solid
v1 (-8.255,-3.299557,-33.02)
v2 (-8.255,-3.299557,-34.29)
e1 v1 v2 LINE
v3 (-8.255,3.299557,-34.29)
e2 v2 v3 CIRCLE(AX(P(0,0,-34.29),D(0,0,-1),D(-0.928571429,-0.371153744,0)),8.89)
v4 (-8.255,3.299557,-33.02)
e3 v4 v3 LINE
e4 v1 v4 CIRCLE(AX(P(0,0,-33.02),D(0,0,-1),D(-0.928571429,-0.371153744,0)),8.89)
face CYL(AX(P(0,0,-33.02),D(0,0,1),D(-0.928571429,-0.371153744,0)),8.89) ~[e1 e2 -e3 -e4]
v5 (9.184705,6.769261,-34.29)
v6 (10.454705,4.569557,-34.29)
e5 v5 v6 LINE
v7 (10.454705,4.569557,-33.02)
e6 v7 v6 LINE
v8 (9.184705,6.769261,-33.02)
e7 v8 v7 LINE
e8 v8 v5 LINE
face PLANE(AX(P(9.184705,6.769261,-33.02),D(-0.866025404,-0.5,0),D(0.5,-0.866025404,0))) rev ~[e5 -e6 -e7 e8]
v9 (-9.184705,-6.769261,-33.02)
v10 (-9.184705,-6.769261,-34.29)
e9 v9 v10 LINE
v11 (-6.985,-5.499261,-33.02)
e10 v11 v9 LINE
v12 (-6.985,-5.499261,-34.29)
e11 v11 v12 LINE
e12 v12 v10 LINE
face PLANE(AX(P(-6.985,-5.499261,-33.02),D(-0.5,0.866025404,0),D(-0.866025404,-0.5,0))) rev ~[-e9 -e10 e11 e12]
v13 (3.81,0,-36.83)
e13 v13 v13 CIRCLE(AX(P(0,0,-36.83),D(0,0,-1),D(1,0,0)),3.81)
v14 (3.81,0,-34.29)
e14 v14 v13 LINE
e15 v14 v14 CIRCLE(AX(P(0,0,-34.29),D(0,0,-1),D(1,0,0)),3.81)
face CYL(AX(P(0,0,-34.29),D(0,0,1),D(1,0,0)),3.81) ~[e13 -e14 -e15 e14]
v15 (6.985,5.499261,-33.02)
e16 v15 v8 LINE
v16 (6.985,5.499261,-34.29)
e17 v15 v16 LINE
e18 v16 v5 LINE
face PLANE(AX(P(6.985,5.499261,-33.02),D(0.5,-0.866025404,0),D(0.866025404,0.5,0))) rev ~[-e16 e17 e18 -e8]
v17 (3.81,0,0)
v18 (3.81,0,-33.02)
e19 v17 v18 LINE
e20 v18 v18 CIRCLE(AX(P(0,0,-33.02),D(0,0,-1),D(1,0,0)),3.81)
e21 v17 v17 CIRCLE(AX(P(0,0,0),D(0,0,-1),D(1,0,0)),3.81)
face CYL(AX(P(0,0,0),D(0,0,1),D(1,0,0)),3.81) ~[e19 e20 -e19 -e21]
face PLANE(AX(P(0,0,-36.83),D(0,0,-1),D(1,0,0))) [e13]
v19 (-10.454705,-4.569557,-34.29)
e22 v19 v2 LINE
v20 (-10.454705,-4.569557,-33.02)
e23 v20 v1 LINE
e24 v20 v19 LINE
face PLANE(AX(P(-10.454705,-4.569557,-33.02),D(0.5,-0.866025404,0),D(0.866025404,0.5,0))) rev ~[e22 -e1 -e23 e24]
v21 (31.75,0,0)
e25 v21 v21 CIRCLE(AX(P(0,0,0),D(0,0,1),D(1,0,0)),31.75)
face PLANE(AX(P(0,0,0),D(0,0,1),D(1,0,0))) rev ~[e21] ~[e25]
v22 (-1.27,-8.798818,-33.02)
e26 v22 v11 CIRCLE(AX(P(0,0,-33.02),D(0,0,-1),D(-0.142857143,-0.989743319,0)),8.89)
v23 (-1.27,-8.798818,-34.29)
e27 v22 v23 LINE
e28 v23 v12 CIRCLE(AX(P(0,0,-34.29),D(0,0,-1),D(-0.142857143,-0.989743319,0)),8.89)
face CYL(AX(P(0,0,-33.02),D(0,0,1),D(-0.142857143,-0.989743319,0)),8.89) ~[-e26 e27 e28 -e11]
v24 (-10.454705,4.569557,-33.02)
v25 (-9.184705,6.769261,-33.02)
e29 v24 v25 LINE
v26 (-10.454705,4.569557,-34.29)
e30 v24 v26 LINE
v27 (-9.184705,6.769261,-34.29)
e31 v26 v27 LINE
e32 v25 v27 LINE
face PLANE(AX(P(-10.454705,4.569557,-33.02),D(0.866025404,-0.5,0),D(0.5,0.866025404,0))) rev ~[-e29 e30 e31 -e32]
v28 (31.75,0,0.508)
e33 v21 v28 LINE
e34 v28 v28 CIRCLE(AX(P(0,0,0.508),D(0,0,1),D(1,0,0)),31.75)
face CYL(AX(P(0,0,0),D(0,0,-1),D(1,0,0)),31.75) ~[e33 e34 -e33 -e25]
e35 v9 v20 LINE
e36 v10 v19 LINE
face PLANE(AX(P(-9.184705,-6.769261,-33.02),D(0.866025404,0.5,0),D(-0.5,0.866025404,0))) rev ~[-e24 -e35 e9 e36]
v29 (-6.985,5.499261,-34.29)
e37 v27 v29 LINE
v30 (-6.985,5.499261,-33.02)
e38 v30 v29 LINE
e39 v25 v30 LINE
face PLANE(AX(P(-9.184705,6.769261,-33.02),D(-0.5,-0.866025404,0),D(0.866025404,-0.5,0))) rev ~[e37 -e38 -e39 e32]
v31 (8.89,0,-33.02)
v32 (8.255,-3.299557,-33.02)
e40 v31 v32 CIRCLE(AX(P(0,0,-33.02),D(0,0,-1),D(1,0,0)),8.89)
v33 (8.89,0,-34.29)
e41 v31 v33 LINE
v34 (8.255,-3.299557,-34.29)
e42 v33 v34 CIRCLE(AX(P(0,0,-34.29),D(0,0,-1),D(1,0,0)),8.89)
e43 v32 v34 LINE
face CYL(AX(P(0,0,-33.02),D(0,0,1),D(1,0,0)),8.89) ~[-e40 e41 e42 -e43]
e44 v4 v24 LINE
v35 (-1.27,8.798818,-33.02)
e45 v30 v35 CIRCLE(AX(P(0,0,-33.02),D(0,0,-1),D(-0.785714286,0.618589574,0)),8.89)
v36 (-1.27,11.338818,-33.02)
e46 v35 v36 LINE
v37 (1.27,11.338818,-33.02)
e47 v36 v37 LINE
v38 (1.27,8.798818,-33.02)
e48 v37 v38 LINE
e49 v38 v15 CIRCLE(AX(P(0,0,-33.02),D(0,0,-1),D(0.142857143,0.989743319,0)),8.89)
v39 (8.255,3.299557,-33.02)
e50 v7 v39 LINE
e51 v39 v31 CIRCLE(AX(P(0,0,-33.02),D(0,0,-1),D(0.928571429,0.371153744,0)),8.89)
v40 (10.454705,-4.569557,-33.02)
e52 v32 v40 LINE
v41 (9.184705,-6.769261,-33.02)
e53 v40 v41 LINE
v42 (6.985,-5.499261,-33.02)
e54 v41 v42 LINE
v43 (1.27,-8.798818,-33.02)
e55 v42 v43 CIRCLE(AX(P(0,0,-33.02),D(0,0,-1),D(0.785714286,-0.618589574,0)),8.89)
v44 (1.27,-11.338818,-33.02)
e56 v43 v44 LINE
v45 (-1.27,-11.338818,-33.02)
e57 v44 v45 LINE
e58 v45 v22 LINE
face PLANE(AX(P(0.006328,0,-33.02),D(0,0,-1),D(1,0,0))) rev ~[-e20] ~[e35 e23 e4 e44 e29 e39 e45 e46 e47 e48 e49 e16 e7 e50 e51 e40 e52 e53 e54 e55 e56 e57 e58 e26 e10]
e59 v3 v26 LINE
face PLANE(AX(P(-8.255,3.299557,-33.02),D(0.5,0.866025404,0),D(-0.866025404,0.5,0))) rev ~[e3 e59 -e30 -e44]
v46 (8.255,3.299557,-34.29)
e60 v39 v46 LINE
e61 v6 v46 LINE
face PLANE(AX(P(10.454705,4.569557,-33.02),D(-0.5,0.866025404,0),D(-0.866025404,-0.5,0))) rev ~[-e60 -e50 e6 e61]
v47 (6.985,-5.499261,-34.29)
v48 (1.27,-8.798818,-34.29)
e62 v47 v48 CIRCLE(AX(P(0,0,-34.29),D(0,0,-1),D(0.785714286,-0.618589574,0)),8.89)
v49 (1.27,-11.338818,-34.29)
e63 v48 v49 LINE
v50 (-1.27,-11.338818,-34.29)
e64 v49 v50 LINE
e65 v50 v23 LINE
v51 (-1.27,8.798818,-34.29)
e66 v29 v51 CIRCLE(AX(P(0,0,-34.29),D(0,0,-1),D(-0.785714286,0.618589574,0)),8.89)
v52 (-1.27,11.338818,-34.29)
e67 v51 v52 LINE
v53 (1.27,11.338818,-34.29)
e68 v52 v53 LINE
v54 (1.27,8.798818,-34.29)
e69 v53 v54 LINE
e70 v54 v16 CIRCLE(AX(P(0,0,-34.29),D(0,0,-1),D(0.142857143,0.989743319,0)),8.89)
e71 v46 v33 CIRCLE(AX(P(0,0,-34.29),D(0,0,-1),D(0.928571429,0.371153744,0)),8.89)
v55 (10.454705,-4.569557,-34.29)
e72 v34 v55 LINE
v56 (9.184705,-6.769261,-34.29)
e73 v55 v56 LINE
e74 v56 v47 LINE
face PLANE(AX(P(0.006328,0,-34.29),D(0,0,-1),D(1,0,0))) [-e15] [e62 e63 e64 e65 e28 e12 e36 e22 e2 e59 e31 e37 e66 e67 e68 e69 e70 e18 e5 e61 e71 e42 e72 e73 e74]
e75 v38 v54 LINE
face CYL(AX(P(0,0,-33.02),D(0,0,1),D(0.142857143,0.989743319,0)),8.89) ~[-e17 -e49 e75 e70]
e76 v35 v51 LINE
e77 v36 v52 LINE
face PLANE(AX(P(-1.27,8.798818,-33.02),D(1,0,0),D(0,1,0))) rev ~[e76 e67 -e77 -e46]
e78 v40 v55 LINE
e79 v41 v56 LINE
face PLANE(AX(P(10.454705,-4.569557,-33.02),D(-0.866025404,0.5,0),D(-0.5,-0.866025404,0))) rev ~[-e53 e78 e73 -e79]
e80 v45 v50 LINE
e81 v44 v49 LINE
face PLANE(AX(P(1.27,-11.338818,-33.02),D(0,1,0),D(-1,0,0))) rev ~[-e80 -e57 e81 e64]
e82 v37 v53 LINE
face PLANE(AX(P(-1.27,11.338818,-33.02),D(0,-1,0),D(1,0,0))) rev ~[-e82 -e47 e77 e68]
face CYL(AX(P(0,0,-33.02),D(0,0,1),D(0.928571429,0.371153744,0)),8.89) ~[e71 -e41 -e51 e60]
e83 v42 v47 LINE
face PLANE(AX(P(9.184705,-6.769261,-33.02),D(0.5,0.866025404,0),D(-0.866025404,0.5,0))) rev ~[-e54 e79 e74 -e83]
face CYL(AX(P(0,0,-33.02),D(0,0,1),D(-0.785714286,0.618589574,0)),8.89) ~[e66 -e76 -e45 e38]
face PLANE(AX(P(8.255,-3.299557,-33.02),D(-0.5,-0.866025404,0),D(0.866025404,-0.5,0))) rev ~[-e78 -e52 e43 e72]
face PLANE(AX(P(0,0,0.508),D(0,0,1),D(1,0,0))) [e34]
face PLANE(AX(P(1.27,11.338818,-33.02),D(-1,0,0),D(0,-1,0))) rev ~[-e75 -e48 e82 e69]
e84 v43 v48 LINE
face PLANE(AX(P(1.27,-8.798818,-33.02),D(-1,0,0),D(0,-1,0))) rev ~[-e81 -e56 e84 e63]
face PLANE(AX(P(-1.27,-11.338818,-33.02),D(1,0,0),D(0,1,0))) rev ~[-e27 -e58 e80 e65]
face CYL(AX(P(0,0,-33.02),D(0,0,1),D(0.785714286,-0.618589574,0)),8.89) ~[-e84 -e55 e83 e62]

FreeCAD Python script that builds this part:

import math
import FreeCAD as App
import Part
import Sketcher
from FreeCAD import Vector
Q = App.Units.Quantity

doc = App.newDocument("Part")
body = doc.addObject("PartDesign::Body", "Body")

# Sketch on XY plane
sketch1 = doc.addObject("Sketcher::SketchObject", "Sketch")
body.addObject(sketch1)
sketch1.AttachmentSupport = (doc.XY_Plane, [""])
sketch1.MapMode = "FlatFace"
sketch1.addGeometry(Part.Circle(Vector(0, 0, 0), Vector(0, 0, 1), 32), False)
sketch1.addConstraint([
    Sketcher.Constraint("Coincident", 0, 3, -1, 1),
    Sketcher.Constraint("Diameter", 0, Q("2.5 in")),
])
pad1 = doc.addObject("PartDesign::Pad", "Pad")
body.addObject(pad1)
pad1.Profile = sketch1
pad1.Length = Q("0.02 in")

# Sketch on XY plane
sketch2 = doc.addObject("Sketcher::SketchObject", "Sketch001")
body.addObject(sketch2)
sketch2.AttachmentSupport = (doc.XY_Plane, [""])
sketch2.MapMode = "FlatFace"
sketch2.addGeometry(Part.Circle(Vector(0, 0, 0), Vector(0, 0, 1), 3.8), False)
sketch2.addConstraint([
    Sketcher.Constraint("Coincident", 0, 3, -1, 1),
    Sketcher.Constraint("Diameter", 0, Q("0.3 in")),
])
pad2 = doc.addObject("PartDesign::Pad", "Pad001")
body.addObject(pad2)
pad2.Profile = sketch2
pad2.Length = Q("1.3 in")
pad2.Reversed = True

# Sketch on XY plane
sketch3 = doc.addObject("Sketcher::SketchObject", "Sketch002")
body.addObject(sketch3)
sketch3.AttachmentSupport = (doc.XY_Plane, [""])
sketch3.MapMode = "FlatFace"
sketch3.AttachmentOffset = App.Placement(Vector(0, 0, -1.3 * 25.4), App.Rotation())
sketch3.addGeometry([
    Part.ArcOfCircle(Part.Circle(Vector(0, 0, 0), Vector(0, 0, 1), 8.9), math.radians(0), math.radians(22)),  # 0
    Part.ArcOfCircle(Part.Circle(Vector(0, 0, 0), Vector(0, 0, 1), 8.9), math.radians(-22), math.radians(0)),  # 1
    Part.LineSegment(Vector(8.3, -3.3, 0), Vector(10.5, -4.6, 0)),  # 2
    Part.LineSegment(Vector(10.5, -4.6, 0), Vector(9.2, -6.8, 0)),  # 3
    Part.LineSegment(Vector(9.2, -6.8, 0), Vector(7, -5.5, 0)),  # 4
    Part.ArcOfCircle(Part.Circle(Vector(0, 0, 0), Vector(0, 0, 1), 8.9), math.radians(-82), math.radians(-38)),  # 5
    Part.LineSegment(Vector(1.3, -8.8, 0), Vector(1.3, -11.3, 0)),  # 6
    Part.LineSegment(Vector(1.3, -11.3, 0), Vector(-1.3, -11.3, 0)),  # 7
    Part.LineSegment(Vector(-1.3, -11.3, 0), Vector(-1.3, -8.8, 0)),  # 8
    Part.ArcOfCircle(Part.Circle(Vector(0, 0, 0), Vector(0, 0, 1), 8.9), math.radians(-142), math.radians(-98)),  # 9
    Part.LineSegment(Vector(-7, -5.5, 0), Vector(-9.2, -6.8, 0)),  # 10
    Part.LineSegment(Vector(-9.2, -6.8, 0), Vector(-10.5, -4.6, 0)),  # 11
    Part.LineSegment(Vector(-10.5, -4.6, 0), Vector(-8.3, -3.3, 0)),  # 12
    Part.ArcOfCircle(Part.Circle(Vector(0, 0, 0), Vector(0, 0, 1), 8.9), math.radians(158), math.radians(202)),  # 13
    Part.LineSegment(Vector(-8.3, 3.3, 0), Vector(-10.5, 4.6, 0)),  # 14
    Part.LineSegment(Vector(-10.5, 4.6, 0), Vector(-9.2, 6.8, 0)),  # 15
    Part.LineSegment(Vector(-9.2, 6.8, 0), Vector(-7, 5.5, 0)),  # 16
    Part.ArcOfCircle(Part.Circle(Vector(0, 0, 0), Vector(0, 0, 1), 8.9), math.radians(98), math.radians(142)),  # 17
    Part.LineSegment(Vector(-1.3, 8.8, 0), Vector(-1.3, 11.3, 0)),  # 18
    Part.LineSegment(Vector(-1.3, 11.3, 0), Vector(1.3, 11.3, 0)),  # 19
    Part.LineSegment(Vector(1.3, 11.3, 0), Vector(1.3, 8.8, 0)),  # 20
    Part.ArcOfCircle(Part.Circle(Vector(0, 0, 0), Vector(0, 0, 1), 8.9), math.radians(38), math.radians(82)),  # 21
    Part.LineSegment(Vector(7, 5.5, 0), Vector(9.2, 6.8, 0)),  # 22
    Part.LineSegment(Vector(9.2, 6.8, 0), Vector(10.5, 4.6, 0)),  # 23
    Part.LineSegment(Vector(10.5, 4.6, 0), Vector(8.3, 3.3, 0)),  # 24
], False)
sketch3.addConstraint([
    Sketcher.Constraint("Tangent", 0, 1, 1, 2),
    Sketcher.Constraint("Coincident", 1, 1, 2, 1),
    Sketcher.Constraint("Coincident", 2, 2, 3, 1),
    Sketcher.Constraint("Coincident", 3, 2, 4, 1),
    Sketcher.Constraint("Coincident", 4, 2, 5, 2),
    Sketcher.Constraint("Coincident", 5, 1, 6, 1),
    Sketcher.Constraint("Coincident", 6, 2, 7, 1),
    Sketcher.Constraint("Coincident", 7, 2, 8, 1),
    Sketcher.Constraint("Coincident", 8, 2, 9, 2),
    Sketcher.Constraint("Coincident", 9, 1, 10, 1),
    Sketcher.Constraint("Coincident", 10, 2, 11, 1),
    Sketcher.Constraint("Coincident", 11, 2, 12, 1),
    Sketcher.Constraint("Coincident", 12, 2, 13, 2),
    Sketcher.Constraint("Coincident", 13, 1, 14, 1),
    Sketcher.Constraint("Coincident", 14, 2, 15, 1),
    Sketcher.Constraint("Coincident", 15, 2, 16, 1),
    Sketcher.Constraint("Coincident", 16, 2, 17, 2),
    Sketcher.Constraint("Coincident", 17, 1, 18, 1),
    Sketcher.Constraint("Coincident", 18, 2, 19, 1),
    Sketcher.Constraint("Coincident", 19, 2, 20, 1),
    Sketcher.Constraint("Coincident", 20, 2, 21, 2),
    Sketcher.Constraint("Coincident", 21, 1, 22, 1),
    Sketcher.Constraint("Coincident", 22, 2, 23, 1),
    Sketcher.Constraint("Coincident", 23, 2, 24, 1),
    Sketcher.Constraint("Coincident", 24, 2, 0, 2),
    Sketcher.Constraint("Vertical", 6),
    Sketcher.Constraint("Horizontal", 7),
    Sketcher.Constraint("Vertical", 8),
    Sketcher.Constraint("Vertical", 18),
    Sketcher.Constraint("Horizontal", 19),
    Sketcher.Constraint("Vertical", 20),
    Sketcher.Constraint("Coincident", 0, 3, -1, 1),
    Sketcher.Constraint("Coincident", 5, 3, -1, 1),
    Sketcher.Constraint("Coincident", 9, 3, -1, 1),
    Sketcher.Constraint("Coincident", 13, 3, -1, 1),
    Sketcher.Constraint("Coincident", 17, 3, -1, 1),
    Sketcher.Constraint("Coincident", 21, 3, -1, 1),
    Sketcher.Constraint("Equal", 0, 1),
    Sketcher.Constraint("Equal", 1, 5),
    Sketcher.Constraint("Equal", 5, 9),
    Sketcher.Constraint("Equal", 9, 13),
    Sketcher.Constraint("Equal", 13, 17),
    Sketcher.Constraint("Equal", 17, 21),
    Sketcher.Constraint("Symmetric", 2, 2, 14, 2, -1, 1),
    Sketcher.Constraint("Symmetric", 3, 2, 15, 2, -1, 1),
    Sketcher.Constraint("Symmetric", 6, 2, 18, 2, -1, 1),
    Sketcher.Constraint("Symmetric", 10, 2, 22, 2, -1, 1),
    Sketcher.Constraint("Symmetric", 11, 2, 23, 2, -1, 1),
    Sketcher.Constraint("Symmetric", 3, 2, 10, 2, -2),
    Sketcher.Constraint("Symmetric", 2, 2, 11, 2, -2),
    Sketcher.Constraint("PointOnObject", 0, 1, -1),
    Sketcher.Constraint("Perpendicular", 2, 3),
    Sketcher.Constraint("Perpendicular", 3, 4),
    Sketcher.Constraint("Perpendicular", 10, 11),
    Sketcher.Constraint("Perpendicular", 11, 12),
    Sketcher.Constraint("Parallel", 4, 14),
    Sketcher.Constraint("Perpendicular", 15, 16),
    Sketcher.Constraint("Parallel", 12, 22),
    Sketcher.Constraint("Perpendicular", 23, 24),
    Sketcher.Constraint("Horizontal", 5, 1, 8, 2),
    Sketcher.Constraint("Horizontal", 17, 1, 20, 2),
    Sketcher.Constraint("Equal", 19, 6),
    Sketcher.Constraint("Equal", 2, 3),
    Sketcher.Constraint("Equal", 3, 4),
    Sketcher.Constraint("Radius", 0, Q("0.35 in")),
    Sketcher.Constraint("DistanceX", 7, 2, 7, 1, Q("0.1 in")),
    Sketcher.Constraint("Angle", 2, Q("-30 deg")),
    Sketcher.Constraint("Distance", 2, Q("0.1 in")),
])
pad3 = doc.addObject("PartDesign::Pad", "Pad002")
body.addObject(pad3)
pad3.Profile = sketch3
pad3.Length = Q("0.05 in")
pad3.Reversed = True

# Sketch on XY plane
sketch4 = doc.addObject("Sketcher::SketchObject", "Sketch003")
body.addObject(sketch4)
sketch4.AttachmentSupport = (doc.XY_Plane, [""])
sketch4.MapMode = "FlatFace"
sketch4.AttachmentOffset = App.Placement(Vector(0, 0, -1.35 * 25.4), App.Rotation())
sketch4.addGeometry(Part.Circle(Vector(0, 0, 0), Vector(0, 0, 1), 3.8), False)
sketch4.addConstraint([
    Sketcher.Constraint("Coincident", 0, 3, -1, 1),
    Sketcher.Constraint("Diameter", 0, Q("0.3 in")),
])
pad4 = doc.addObject("PartDesign::Pad", "Pad003")
body.addObject(pad4)
pad4.Profile = sketch4
pad4.Length = Q("0.1 in")
pad4.Reversed = True

doc.recompute()
